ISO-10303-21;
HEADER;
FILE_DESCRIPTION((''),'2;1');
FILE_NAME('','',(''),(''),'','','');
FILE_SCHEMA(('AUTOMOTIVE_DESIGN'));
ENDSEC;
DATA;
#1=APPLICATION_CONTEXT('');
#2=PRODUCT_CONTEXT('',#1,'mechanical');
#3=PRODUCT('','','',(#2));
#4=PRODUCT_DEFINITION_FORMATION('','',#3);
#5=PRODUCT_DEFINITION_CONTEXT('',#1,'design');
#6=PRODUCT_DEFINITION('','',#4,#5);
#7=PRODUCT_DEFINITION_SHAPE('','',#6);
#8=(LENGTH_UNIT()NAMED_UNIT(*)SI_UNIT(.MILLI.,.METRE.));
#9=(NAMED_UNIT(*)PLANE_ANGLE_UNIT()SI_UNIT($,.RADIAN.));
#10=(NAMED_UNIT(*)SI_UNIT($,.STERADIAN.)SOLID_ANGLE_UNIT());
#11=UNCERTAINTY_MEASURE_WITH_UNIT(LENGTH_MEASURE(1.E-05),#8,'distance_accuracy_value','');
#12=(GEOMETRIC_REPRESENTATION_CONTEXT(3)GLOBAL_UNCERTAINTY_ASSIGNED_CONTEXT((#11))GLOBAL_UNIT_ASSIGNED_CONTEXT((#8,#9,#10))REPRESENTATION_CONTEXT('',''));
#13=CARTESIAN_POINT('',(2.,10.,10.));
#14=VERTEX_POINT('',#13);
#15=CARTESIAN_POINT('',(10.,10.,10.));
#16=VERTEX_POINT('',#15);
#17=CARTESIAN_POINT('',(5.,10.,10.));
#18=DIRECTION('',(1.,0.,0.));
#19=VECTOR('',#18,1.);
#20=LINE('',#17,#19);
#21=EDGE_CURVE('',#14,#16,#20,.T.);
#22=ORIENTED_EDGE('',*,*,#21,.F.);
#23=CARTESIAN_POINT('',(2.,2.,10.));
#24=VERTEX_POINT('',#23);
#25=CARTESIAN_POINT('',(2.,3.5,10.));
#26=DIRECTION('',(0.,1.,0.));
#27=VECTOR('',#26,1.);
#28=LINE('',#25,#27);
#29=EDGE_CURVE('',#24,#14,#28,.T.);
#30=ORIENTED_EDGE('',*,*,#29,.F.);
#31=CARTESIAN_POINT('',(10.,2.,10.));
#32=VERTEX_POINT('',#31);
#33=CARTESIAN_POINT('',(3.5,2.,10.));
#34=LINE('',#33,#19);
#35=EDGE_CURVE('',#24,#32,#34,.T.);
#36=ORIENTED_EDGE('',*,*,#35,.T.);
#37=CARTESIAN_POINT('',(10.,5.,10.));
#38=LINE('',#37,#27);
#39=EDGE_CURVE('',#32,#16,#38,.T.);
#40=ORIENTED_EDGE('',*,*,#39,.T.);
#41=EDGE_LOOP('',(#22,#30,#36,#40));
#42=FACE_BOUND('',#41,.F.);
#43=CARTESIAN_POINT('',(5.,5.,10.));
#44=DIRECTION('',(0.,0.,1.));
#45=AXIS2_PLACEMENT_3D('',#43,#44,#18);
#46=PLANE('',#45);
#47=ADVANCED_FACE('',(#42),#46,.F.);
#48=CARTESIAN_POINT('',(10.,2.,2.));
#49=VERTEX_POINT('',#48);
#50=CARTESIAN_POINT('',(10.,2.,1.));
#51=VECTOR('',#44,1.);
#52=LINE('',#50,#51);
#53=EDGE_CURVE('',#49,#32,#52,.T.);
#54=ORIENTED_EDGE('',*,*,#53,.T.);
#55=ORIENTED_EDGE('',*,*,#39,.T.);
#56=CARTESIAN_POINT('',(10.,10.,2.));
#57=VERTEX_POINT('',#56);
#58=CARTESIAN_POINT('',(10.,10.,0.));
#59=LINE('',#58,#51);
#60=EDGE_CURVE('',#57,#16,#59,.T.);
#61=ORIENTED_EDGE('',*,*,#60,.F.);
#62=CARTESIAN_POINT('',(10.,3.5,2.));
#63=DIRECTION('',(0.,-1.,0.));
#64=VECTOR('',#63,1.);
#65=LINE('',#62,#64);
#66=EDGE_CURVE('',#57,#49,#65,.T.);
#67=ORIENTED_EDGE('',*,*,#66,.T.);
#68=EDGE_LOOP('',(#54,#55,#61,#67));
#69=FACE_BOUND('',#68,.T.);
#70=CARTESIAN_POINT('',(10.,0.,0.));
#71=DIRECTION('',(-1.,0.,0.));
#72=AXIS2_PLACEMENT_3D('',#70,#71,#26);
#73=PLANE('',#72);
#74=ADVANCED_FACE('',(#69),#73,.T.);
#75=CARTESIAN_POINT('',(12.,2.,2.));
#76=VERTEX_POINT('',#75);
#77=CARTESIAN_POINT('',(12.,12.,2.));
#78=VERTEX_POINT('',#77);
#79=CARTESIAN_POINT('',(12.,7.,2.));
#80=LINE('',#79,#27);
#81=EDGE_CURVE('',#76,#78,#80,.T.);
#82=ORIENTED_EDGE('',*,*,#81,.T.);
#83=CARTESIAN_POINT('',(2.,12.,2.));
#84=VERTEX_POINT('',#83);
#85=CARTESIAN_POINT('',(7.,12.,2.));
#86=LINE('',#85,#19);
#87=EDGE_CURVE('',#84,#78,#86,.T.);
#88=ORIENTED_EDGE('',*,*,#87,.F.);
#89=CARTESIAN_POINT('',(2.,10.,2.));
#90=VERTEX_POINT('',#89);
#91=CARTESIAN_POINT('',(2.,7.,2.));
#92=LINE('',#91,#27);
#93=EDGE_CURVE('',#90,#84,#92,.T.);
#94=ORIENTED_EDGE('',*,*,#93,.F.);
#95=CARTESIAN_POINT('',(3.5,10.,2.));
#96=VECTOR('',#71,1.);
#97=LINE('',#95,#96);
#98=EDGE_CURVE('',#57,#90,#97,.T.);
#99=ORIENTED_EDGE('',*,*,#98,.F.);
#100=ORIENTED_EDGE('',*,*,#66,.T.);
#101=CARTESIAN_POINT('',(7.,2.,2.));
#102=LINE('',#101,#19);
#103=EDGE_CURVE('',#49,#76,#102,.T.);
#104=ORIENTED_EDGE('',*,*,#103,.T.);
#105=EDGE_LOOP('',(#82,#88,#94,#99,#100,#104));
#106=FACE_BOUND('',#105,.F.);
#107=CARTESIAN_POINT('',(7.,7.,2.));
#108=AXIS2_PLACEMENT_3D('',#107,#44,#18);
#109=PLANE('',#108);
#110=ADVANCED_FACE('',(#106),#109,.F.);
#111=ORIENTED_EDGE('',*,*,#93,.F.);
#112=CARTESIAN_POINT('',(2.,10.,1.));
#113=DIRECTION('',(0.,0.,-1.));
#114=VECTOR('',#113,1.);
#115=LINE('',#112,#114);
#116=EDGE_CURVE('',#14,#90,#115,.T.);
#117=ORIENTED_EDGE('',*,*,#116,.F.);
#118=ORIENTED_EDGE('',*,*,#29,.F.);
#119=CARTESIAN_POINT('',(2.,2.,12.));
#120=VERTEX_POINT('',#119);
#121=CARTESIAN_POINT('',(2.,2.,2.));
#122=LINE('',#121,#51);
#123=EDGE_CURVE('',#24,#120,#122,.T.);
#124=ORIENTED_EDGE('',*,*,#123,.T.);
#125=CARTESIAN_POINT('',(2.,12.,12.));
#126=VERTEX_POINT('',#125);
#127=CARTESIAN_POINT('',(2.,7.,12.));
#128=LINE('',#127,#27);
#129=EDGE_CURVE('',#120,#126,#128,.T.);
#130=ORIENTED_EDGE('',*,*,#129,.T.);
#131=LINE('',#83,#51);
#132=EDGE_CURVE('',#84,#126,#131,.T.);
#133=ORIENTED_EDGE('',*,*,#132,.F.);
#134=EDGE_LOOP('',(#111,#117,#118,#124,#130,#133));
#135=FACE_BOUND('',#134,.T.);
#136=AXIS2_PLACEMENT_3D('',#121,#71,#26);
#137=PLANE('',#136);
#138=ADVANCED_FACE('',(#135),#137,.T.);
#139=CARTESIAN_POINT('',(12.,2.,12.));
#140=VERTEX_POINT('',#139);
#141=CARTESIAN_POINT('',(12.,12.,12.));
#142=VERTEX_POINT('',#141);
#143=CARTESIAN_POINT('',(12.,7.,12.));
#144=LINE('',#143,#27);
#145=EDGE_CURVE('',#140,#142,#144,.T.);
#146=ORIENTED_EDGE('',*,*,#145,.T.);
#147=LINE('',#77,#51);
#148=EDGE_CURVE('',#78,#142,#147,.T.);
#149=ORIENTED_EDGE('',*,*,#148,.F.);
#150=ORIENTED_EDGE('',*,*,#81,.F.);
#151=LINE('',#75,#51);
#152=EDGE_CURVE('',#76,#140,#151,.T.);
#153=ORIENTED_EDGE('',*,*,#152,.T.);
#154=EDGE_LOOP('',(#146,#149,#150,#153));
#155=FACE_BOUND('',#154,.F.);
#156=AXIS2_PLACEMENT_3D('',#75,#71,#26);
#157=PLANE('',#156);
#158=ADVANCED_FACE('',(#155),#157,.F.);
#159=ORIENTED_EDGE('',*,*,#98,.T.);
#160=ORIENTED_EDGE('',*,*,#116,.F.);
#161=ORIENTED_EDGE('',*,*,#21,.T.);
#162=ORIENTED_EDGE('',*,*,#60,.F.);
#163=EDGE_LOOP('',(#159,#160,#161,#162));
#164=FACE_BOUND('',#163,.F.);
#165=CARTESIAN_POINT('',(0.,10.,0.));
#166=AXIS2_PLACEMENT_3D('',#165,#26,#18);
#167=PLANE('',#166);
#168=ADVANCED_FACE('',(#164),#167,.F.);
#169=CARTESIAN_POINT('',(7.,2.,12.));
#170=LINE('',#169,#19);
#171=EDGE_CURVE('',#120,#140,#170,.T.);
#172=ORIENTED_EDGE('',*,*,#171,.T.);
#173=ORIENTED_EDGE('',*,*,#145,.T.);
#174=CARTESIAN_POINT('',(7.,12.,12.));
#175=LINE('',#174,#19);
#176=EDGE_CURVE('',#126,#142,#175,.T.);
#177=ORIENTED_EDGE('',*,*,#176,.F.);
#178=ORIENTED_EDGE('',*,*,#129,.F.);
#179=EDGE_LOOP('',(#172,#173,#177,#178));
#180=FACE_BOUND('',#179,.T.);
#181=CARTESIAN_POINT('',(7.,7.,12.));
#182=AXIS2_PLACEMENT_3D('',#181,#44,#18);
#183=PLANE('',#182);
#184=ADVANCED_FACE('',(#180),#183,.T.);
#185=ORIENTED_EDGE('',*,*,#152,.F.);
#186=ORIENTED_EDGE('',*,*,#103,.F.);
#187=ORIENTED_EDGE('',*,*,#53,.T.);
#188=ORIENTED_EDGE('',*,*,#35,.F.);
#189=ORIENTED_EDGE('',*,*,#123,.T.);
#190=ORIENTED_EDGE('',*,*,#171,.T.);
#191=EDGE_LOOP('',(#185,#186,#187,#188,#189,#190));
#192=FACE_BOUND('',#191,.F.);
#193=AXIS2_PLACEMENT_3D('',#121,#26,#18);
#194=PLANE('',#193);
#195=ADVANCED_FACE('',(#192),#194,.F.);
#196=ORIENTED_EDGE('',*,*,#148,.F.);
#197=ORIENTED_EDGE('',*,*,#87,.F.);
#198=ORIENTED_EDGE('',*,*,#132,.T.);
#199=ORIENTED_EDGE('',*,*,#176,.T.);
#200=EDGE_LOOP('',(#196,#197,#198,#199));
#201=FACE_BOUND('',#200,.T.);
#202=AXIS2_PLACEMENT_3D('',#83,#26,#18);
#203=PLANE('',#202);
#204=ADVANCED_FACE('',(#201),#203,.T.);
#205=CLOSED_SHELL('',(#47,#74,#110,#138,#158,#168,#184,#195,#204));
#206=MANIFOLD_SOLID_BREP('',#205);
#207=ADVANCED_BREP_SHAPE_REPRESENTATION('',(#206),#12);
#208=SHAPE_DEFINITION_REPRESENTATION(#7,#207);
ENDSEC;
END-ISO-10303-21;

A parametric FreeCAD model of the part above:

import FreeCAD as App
import Part
import Sketcher

doc = App.newDocument("Part")
body = doc.addObject("PartDesign::Body", "Body")

# Sketch on XY plane
sketch1 = body.newObject("Sketcher::SketchObject", "Sketch")
sketch1.AttachmentSupport = (doc.getObject("XY_Plane"), [""])
sketch1.MapMode = "FlatFace"
sketch1.addGeometry(Part.LineSegment(App.Vector(0, 10, 0), App.Vector(0, 0, 0)), False)
sketch1.addGeometry(Part.LineSegment(App.Vector(0, 0, 0), App.Vector(10, 0, 0)), False)
sketch1.addGeometry(Part.LineSegment(App.Vector(10, 0, 0), App.Vector(10, 10, 0)), False)
sketch1.addGeometry(Part.LineSegment(App.Vector(10, 10, 0), App.Vector(0, 10, 0)), False)
sketch1.addConstraint(Sketcher.Constraint("Coincident", 0, 2, 1, 1))
sketch1.addConstraint(Sketcher.Constraint("Coincident", 1, 2, 2, 1))
sketch1.addConstraint(Sketcher.Constraint("Coincident", 2, 2, 3, 1))
sketch1.addConstraint(Sketcher.Constraint("Coincident", 3, 2, 0, 1))
sketch1.addConstraint(Sketcher.Constraint("Vertical", 0))
sketch1.addConstraint(Sketcher.Constraint("Horizontal", 1))
sketch1.addConstraint(Sketcher.Constraint("Vertical", 2))
sketch1.addConstraint(Sketcher.Constraint("Horizontal", 3))
sketch1.addConstraint(Sketcher.Constraint("Coincident", 0, 2, -1, 1))
sketch1.addConstraint(Sketcher.Constraint("Equal", 3, 0))
sketch1.addConstraint(Sketcher.Constraint("DistanceX", 1, 1, 1, 2, 10.0))
pad1 = body.newObject("PartDesign::Pad", "Pad")
pad1.Profile = sketch1
pad1.Length = 10
body2 = doc.addObject("PartDesign::Body", "Body001")

# Sketch on XY plane
sketch2 = body2.newObject("Sketcher::SketchObject", "Sketch001")
sketch2.AttachmentSupport = (doc.getObject("XY_Plane001"), [""])
sketch2.MapMode = "FlatFace"
sketch2.AttachmentOffset = App.Placement(App.Vector(0, 0, 2), App.Rotation())
sketch2.addGeometry(Part.LineSegment(App.Vector(2, 12, 0), App.Vector(2, 2, 0)), False)
sketch2.addGeometry(Part.LineSegment(App.Vector(2, 2, 0), App.Vector(12, 2, 0)), False)
sketch2.addGeometry(Part.LineSegment(App.Vector(12, 2, 0), App.Vector(12, 12, 0)), False)
sketch2.addGeometry(Part.LineSegment(App.Vector(12, 12, 0), App.Vector(2, 12, 0)), False)
sketch2.addConstraint(Sketcher.Constraint("Coincident", 0, 2, 1, 1))
sketch2.addConstraint(Sketcher.Constraint("Coincident", 1, 2, 2, 1))
sketch2.addConstraint(Sketcher.Constraint("Coincident", 2, 2, 3, 1))
sketch2.addConstraint(Sketcher.Constraint("Coincident", 3, 2, 0, 1))
sketch2.addConstraint(Sketcher.Constraint("Vertical", 0))
sketch2.addConstraint(Sketcher.Constraint("Horizontal", 1))
sketch2.addConstraint(Sketcher.Constraint("Vertical", 2))
sketch2.addConstraint(Sketcher.Constraint("Horizontal", 3))
sketch2.addConstraint(Sketcher.Constraint("Equal", 3, 0))
sketch2.addConstraint(Sketcher.Constraint("DistanceX", 1, 1, 1, 2, 10.0))
sketch2.addConstraint(Sketcher.Constraint("DistanceX", -1, 1, 0, 2, 2.0))
sketch2.addConstraint(Sketcher.Constraint("DistanceY", -1, 1, 0, 2, 2.0))
pad2 = body2.newObject("PartDesign::Pad", "Pad001")
pad2.Profile = sketch2
pad2.Length = 10
doc.recompute()

boolean = body2.newObject("PartDesign::Boolean", "Boolean")
boolean.Type = "Cut"
boolean.addObjects([body])

doc.recompute()
